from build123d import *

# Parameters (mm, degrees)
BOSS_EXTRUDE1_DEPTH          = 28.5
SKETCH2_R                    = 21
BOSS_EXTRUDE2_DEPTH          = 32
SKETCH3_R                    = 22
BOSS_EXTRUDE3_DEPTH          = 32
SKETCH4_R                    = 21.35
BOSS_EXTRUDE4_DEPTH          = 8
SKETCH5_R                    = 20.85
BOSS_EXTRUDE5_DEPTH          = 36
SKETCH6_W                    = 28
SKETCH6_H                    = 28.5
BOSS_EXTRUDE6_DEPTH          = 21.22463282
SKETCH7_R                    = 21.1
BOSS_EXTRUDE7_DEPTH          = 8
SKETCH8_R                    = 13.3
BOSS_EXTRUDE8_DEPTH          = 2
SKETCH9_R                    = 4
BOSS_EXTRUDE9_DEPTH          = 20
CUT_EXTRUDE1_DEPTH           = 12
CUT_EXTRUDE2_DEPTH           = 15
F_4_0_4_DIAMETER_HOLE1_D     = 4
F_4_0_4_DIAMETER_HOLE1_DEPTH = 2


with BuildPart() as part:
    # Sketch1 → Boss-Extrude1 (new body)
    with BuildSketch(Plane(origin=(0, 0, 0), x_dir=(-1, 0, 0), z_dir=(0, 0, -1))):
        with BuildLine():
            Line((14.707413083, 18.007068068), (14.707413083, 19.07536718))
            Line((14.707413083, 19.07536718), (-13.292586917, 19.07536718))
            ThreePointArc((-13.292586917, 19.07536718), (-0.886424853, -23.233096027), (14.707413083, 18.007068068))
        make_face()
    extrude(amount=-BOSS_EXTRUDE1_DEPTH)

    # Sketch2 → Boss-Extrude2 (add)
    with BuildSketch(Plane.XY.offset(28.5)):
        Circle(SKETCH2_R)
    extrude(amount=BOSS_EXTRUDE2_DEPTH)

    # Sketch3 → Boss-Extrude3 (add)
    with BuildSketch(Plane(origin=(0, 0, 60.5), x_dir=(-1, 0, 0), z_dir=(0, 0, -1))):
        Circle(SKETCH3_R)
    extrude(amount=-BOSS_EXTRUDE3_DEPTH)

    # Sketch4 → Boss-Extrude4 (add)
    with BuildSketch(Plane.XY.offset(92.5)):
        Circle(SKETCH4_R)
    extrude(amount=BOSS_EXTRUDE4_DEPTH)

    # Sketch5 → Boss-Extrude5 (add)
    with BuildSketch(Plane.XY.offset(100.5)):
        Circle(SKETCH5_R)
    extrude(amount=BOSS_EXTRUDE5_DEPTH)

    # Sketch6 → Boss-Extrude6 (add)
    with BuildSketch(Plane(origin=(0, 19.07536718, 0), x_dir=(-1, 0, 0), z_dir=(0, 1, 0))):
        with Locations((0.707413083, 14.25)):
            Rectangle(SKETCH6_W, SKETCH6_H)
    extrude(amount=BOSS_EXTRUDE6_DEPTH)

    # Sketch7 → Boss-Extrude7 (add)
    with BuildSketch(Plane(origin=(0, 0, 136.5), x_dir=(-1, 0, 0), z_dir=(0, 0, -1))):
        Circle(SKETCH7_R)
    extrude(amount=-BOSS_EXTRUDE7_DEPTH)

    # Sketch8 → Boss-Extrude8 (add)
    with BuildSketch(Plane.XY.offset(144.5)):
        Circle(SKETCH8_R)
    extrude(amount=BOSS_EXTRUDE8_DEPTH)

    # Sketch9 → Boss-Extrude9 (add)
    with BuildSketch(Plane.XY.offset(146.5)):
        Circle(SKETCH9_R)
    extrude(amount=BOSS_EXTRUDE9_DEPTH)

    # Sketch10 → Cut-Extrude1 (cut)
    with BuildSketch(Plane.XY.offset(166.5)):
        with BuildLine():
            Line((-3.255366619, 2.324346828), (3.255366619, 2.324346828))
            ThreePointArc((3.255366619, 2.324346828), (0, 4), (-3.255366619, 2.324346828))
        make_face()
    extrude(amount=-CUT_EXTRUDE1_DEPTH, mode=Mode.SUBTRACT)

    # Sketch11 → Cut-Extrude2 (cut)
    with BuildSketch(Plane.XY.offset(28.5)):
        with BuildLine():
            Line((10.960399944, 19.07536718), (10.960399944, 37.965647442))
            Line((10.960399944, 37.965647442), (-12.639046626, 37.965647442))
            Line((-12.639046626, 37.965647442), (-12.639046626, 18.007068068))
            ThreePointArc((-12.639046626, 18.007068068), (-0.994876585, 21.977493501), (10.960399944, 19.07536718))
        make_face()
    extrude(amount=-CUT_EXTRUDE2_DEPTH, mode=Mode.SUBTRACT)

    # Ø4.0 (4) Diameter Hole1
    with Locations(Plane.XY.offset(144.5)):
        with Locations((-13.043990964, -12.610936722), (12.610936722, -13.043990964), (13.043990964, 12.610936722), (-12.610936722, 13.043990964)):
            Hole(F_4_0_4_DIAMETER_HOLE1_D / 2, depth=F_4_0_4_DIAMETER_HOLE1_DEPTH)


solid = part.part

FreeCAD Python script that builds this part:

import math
import FreeCAD as App
import Part
import Sketcher

V = App.Vector
Q = App.Units.Quantity

doc = App.newDocument("Part")
body = doc.addObject("PartDesign::Body", "Body")

# Sketch on XY plane
sketch1 = body.newObject("Sketcher::SketchObject", "Sketch")
sketch1.AttachmentSupport = (doc.getObject("XY_Plane"), [""])
sketch1.MapMode = "FlatFace"
sketch1.addGeometry(Part.LineSegment(V(-14.7, 18, 0), V(-14.7, 19.1, 0)), False)
sketch1.addGeometry(Part.LineSegment(V(-14.7, 19.1, 0), V(13.3, 19.1, 0)), False)
sketch1.addGeometry(Part.ArcOfCircle(Part.Circle(V(0, 0, 0), V(0, 0, 1), 23.2), math.radians(129), math.radians(415)), False)
sketch1.addConstraint(Sketcher.Constraint("Coincident", 0, 2, 1, 1))
sketch1.addConstraint(Sketcher.Constraint("Coincident", 1, 2, 2, 2))
sketch1.addConstraint(Sketcher.Constraint("Coincident", 2, 1, 0, 1))
sketch1.addConstraint(Sketcher.Constraint("Vertical", 0))
sketch1.addConstraint(Sketcher.Constraint("Horizontal", 1))
sketch1.addConstraint(Sketcher.Constraint("Coincident", 2, 3, -1, 1))
sketch1.addConstraint(Sketcher.Constraint("DistanceX", 1, 1, 1, 2, Q("28 mm")))
sketch1.addConstraint(Sketcher.Constraint("Radius", 2, Q("23.25 mm")))
sketch1.addConstraint(Sketcher.Constraint("DistanceY", 0, 1, 0, 2, Q("1.068299 mm")))
pad1 = body.newObject("PartDesign::Pad", "Pad")
pad1.Profile = sketch1
pad1.Length = 28.5

# Sketch on XY plane
sketch2 = body.newObject("Sketcher::SketchObject", "Sketch001")
sketch2.AttachmentSupport = (doc.getObject("XY_Plane"), [""])
sketch2.MapMode = "FlatFace"
sketch2.AttachmentOffset = App.Placement(V(0, 0, 28.5), App.Rotation())
sketch2.addGeometry(Part.Circle(V(0, 0, 0), V(0, 0, 1), 21), False)
sketch2.addConstraint(Sketcher.Constraint("Coincident", 0, 3, -1, 1))
sketch2.addConstraint(Sketcher.Constraint("Diameter", 0, Q("42 mm")))
pad2 = body.newObject("PartDesign::Pad", "Pad001")
pad2.Profile = sketch2
pad2.Length = 32

# Sketch on XY plane
sketch3 = body.newObject("Sketcher::SketchObject", "Sketch002")
sketch3.AttachmentSupport = (doc.getObject("XY_Plane"), [""])
sketch3.MapMode = "FlatFace"
sketch3.AttachmentOffset = App.Placement(V(0, 0, 60.5), App.Rotation())
sketch3.addGeometry(Part.Circle(V(0, 0, 0), V(0, 0, 1), 22), False)
sketch3.addConstraint(Sketcher.Constraint("Coincident", 0, 3, -1, 1))
sketch3.addConstraint(Sketcher.Constraint("Diameter", 0, Q("44 mm")))
pad3 = body.newObject("PartDesign::Pad", "Pad002")
pad3.Profile = sketch3
pad3.Length = 32

# Sketch on XY plane
sketch4 = body.newObject("Sketcher::SketchObject", "Sketch003")
sketch4.AttachmentSupport = (doc.getObject("XY_Plane"), [""])
sketch4.MapMode = "FlatFace"
sketch4.AttachmentOffset = App.Placement(V(0, 0, 92.5), App.Rotation())
sketch4.addGeometry(Part.Circle(V(0, 0, 0), V(0, 0, 1), 21), False)
sketch4.addConstraint(Sketcher.Constraint("Coincident", 0, 3, -1, 1))
sketch4.addConstraint(Sketcher.Constraint("Diameter", 0, Q("42.7 mm")))
pad4 = body.newObject("PartDesign::Pad", "Pad003")
pad4.Profile = sketch4
pad4.Length = 8

# Sketch on XY plane
sketch5 = body.newObject("Sketcher::SketchObject", "Sketch004")
sketch5.AttachmentSupport = (doc.getObject("XY_Plane"), [""])
sketch5.MapMode = "FlatFace"
sketch5.AttachmentOffset = App.Placement(V(0, 0, 100.5), App.Rotation())
sketch5.addGeometry(Part.Circle(V(0, 0, 0), V(0, 0, 1), 21), False)
sketch5.addConstraint(Sketcher.Constraint("Coincident", 0, 3, -1, 1))
sketch5.addConstraint(Sketcher.Constraint("Diameter", 0, Q("41.7 mm")))
pad5 = body.newObject("PartDesign::Pad", "Pad004")
pad5.Profile = sketch5
pad5.Length = 36

# Sketch on XZ plane
sketch6 = body.newObject("Sketcher::SketchObject", "Sketch005")
sketch6.AttachmentSupport = (doc.getObject("XZ_Plane"), [""])
sketch6.MapMode = "FlatFace"
sketch6.AttachmentOffset = App.Placement(V(0, 0, -19.075367), App.Rotation())
sketch6.addGeometry(Part.LineSegment(V(13, 28, 0), V(13, 0, 0)), False)
sketch6.addGeometry(Part.LineSegment(V(13, 0, 0), V(-15, 0, 0)), False)
sketch6.addGeometry(Part.LineSegment(V(-15, 0, 0), V(-15, 28, 0)), False)
sketch6.addGeometry(Part.LineSegment(V(-15, 28, 0), V(13, 28, 0)), False)
sketch6.addConstraint(Sketcher.Constraint("Coincident", 0, 2, 1, 1))
sketch6.addConstraint(Sketcher.Constraint("Coincident", 1, 2, 2, 1))
sketch6.addConstraint(Sketcher.Constraint("Coincident", 2, 2, 3, 1))
sketch6.addConstraint(Sketcher.Constraint("Coincident", 3, 2, 0, 1))
sketch6.addConstraint(Sketcher.Constraint("Vertical", 0))
sketch6.addConstraint(Sketcher.Constraint("Horizontal", 1))
sketch6.addConstraint(Sketcher.Constraint("Vertical", 2))
sketch6.addConstraint(Sketcher.Constraint("Horizontal", 3))
sketch6.addConstraint(Sketcher.Constraint("PointOnObject", 0, 2, -1))
sketch6.addConstraint(Sketcher.Constraint("DistanceX", 1, 2, 1, 1, Q("28 mm")))
sketch6.addConstraint(Sketcher.Constraint("DistanceY", 0, 2, 0, 1, Q("28.5 mm")))
sketch6.addConstraint(Sketcher.Constraint("DistanceX", -1, 1, 0, 2, Q("13.292587 mm")))
pad6 = body.newObject("PartDesign::Pad", "Pad005")
pad6.Profile = sketch6
pad6.Length = 21.224633
pad6.Reversed = True

# Sketch on XY plane
sketch7 = body.newObject("Sketcher::SketchObject", "Sketch006")
sketch7.AttachmentSupport = (doc.getObject("XY_Plane"), [""])
sketch7.MapMode = "FlatFace"
sketch7.AttachmentOffset = App.Placement(V(0, 0, 136.5), App.Rotation())
sketch7.addGeometry(Part.Circle(V(0, 0, 0), V(0, 0, 1), 21), False)
sketch7.addConstraint(Sketcher.Constraint("Coincident", 0, 3, -1, 1))
sketch7.addConstraint(Sketcher.Constraint("Diameter", 0, Q("42.2 mm")))
pad7 = body.newObject("PartDesign::Pad", "Pad006")
pad7.Profile = sketch7
pad7.Length = 8

# Sketch on XY plane
sketch8 = body.newObject("Sketcher::SketchObject", "Sketch007")
sketch8.AttachmentSupport = (doc.getObject("XY_Plane"), [""])
sketch8.MapMode = "FlatFace"
sketch8.AttachmentOffset = App.Placement(V(0, 0, 144.5), App.Rotation())
sketch8.addGeometry(Part.Circle(V(0, 0, 0), V(0, 0, 1), 13), False)
sketch8.addConstraint(Sketcher.Constraint("Coincident", 0, 3, -1, 1))
sketch8.addConstraint(Sketcher.Constraint("Diameter", 0, Q("26.6 mm")))
pad8 = body.newObject("PartDesign::Pad", "Pad007")
pad8.Profile = sketch8
pad8.Length = 2

# Sketch on XY plane
sketch9 = body.newObject("Sketcher::SketchObject", "Sketch008")
sketch9.AttachmentSupport = (doc.getObject("XY_Plane"), [""])
sketch9.MapMode = "FlatFace"
sketch9.AttachmentOffset = App.Placement(V(0, 0, 146.5), App.Rotation())
sketch9.addGeometry(Part.Circle(V(0, 0, 0), V(0, 0, 1), 4), False)
sketch9.addConstraint(Sketcher.Constraint("Coincident", 0, 3, -1, 1))
sketch9.addConstraint(Sketcher.Constraint("Diameter", 0, Q("8 mm")))
pad9 = body.newObject("PartDesign::Pad", "Pad008")
pad9.Profile = sketch9
pad9.Length = 20

# Sketch on XY plane
sketch10 = body.newObject("Sketcher::SketchObject", "Sketch009")
sketch10.AttachmentSupport = (doc.getObject("XY_Plane"), [""])
sketch10.MapMode = "FlatFace"
sketch10.AttachmentOffset = App.Placement(V(0, 0, 166.5), App.Rotation())
sketch10.addGeometry(Part.LineSegment(V(-3.3, 2.3, 0), V(3.3, 2.3, 0)), False)
sketch10.addGeometry(Part.ArcOfCircle(Part.Circle(V(0, 0, 0), V(0, 0, 1), 4), math.radians(36), math.radians(144)), False)
sketch10.addConstraint(Sketcher.Constraint("Coincident", 0, 1, 1, 2))
sketch10.addConstraint(Sketcher.Constraint("Coincident", 1, 1, 0, 2))
sketch10.addConstraint(Sketcher.Constraint("Horizontal", 0))
sketch10.addConstraint(Sketcher.Constraint("Coincident", 1, 3, -1, 1))
sketch10.addConstraint(Sketcher.Constraint("Radius", 1, Q("4 mm")))
sketch10.addConstraint(Sketcher.Constraint("DistanceX", 0, 1, 0, 2, Q("6.510733 mm")))
pocket1 = body.newObject("PartDesign::Pocket", "Pocket")
pocket1.Profile = sketch10
pocket1.Length = 12

# Sketch on XY plane
sketch11 = body.newObject("Sketcher::SketchObject", "Sketch010")
sketch11.AttachmentSupport = (doc.getObject("XY_Plane"), [""])
sketch11.MapMode = "FlatFace"
sketch11.AttachmentOffset = App.Placement(V(0, 0, 28.5), App.Rotation())
sketch11.addGeometry(Part.LineSegment(V(11, 19, 0), V(11, 38, 0)), False)
sketch11.addGeometry(Part.LineSegment(V(11, 38, 0), V(-13, 38, 0)), False)
sketch11.addGeometry(Part.LineSegment(V(-13, 38, 0), V(-13, 18, 0)), False)
sketch11.addGeometry(Part.ArcOfCircle(Part.Circle(V(0, 0, 0), V(0, 0, 1), 22), math.radians(60), math.radians(125)), False)
sketch11.addConstraint(Sketcher.Constraint("Coincident", 0, 2, 1, 1))
sketch11.addConstraint(Sketcher.Constraint("Coincident", 1, 2, 2, 1))
sketch11.addConstraint(Sketcher.Constraint("Coincident", 2, 2, 3, 2))
sketch11.addConstraint(Sketcher.Constraint("Coincident", 3, 1, 0, 1))
sketch11.addConstraint(Sketcher.Constraint("Vertical", 0))
sketch11.addConstraint(Sketcher.Constraint("Horizontal", 1))
sketch11.addConstraint(Sketcher.Constraint("Vertical", 2))
sketch11.addConstraint(Sketcher.Constraint("Coincident", 3, 3, -1, 1))
sketch11.addConstraint(Sketcher.Constraint("Radius", 3, Q("22 mm")))
sketch11.addConstraint(Sketcher.Constraint("DistanceY", 0, 1, 0, 2, Q("18.89028 mm")))
sketch11.addConstraint(Sketcher.Constraint("DistanceY", 2, 2, 2, 1, Q("19.958579 mm")))
sketch11.addConstraint(Sketcher.Constraint("DistanceX", -1, 1, 0, 2, Q("10.9604 mm")))
pocket2 = body.newObject("PartDesign::Pocket", "Pocket001")
pocket2.Profile = sketch11
pocket2.Length = 15

# Sketch on XY plane
sketch12 = body.newObject("Sketcher::SketchObject", "Sketch011")
sketch12.AttachmentSupport = (doc.getObject("XY_Plane"), [""])
sketch12.MapMode = "FlatFace"
sketch12.AttachmentOffset = App.Placement(V(0, 0, 144.5), App.Rotation())
sketch12.addGeometry(Part.Circle(V(-13, -12.6, 0), V(0, 0, 1), 2), False)
sketch12.addGeometry(Part.Circle(V(12.6, -13, 0), V(0, 0, 1), 2), False)
sketch12.addGeometry(Part.Circle(V(13, 12.6, 0), V(0, 0, 1), 2), False)
sketch12.addGeometry(Part.Circle(V(-12.6, 13, 0), V(0, 0, 1), 2), False)
sketch12.addConstraint(Sketcher.Constraint("Equal", 0, 1))
sketch12.addConstraint(Sketcher.Constraint("Equal", 1, 2))
sketch12.addConstraint(Sketcher.Constraint("Equal", 2, 3))
sketch12.addConstraint(Sketcher.Constraint("Symmetric", 0, 3, 2, 3, -1, 1))
sketch12.addConstraint(Sketcher.Constraint("Symmetric", 1, 3, 3, 3, -1, 1))
sketch12.addConstraint(Sketcher.Constraint("Diameter", 0, Q("4 mm")))
sketch12.addConstraint(Sketcher.Constraint("DistanceX", 0, 3, -1, 1, Q("13.043991 mm")))
sketch12.addConstraint(Sketcher.Constraint("DistanceY", 1, 3, -1, 1, Q("13.043991 mm")))
sketch12.addConstraint(Sketcher.Constraint("DistanceY", 0, 3, -1, 1, Q("12.610937 mm")))
sketch12.addConstraint(Sketcher.Constraint("DistanceX", -1, 1, 1, 3, Q("12.610937 mm")))
doc.recompute()
hole = body.newObject("PartDesign::Hole", "Hole")
hole.Profile = sketch12
hole.ThreadType = "None"
hole.Diameter = 4
hole.DepthType = "Dimension"
hole.Depth = 2
hole.DrillPoint = "Flat"

doc.recompute()
